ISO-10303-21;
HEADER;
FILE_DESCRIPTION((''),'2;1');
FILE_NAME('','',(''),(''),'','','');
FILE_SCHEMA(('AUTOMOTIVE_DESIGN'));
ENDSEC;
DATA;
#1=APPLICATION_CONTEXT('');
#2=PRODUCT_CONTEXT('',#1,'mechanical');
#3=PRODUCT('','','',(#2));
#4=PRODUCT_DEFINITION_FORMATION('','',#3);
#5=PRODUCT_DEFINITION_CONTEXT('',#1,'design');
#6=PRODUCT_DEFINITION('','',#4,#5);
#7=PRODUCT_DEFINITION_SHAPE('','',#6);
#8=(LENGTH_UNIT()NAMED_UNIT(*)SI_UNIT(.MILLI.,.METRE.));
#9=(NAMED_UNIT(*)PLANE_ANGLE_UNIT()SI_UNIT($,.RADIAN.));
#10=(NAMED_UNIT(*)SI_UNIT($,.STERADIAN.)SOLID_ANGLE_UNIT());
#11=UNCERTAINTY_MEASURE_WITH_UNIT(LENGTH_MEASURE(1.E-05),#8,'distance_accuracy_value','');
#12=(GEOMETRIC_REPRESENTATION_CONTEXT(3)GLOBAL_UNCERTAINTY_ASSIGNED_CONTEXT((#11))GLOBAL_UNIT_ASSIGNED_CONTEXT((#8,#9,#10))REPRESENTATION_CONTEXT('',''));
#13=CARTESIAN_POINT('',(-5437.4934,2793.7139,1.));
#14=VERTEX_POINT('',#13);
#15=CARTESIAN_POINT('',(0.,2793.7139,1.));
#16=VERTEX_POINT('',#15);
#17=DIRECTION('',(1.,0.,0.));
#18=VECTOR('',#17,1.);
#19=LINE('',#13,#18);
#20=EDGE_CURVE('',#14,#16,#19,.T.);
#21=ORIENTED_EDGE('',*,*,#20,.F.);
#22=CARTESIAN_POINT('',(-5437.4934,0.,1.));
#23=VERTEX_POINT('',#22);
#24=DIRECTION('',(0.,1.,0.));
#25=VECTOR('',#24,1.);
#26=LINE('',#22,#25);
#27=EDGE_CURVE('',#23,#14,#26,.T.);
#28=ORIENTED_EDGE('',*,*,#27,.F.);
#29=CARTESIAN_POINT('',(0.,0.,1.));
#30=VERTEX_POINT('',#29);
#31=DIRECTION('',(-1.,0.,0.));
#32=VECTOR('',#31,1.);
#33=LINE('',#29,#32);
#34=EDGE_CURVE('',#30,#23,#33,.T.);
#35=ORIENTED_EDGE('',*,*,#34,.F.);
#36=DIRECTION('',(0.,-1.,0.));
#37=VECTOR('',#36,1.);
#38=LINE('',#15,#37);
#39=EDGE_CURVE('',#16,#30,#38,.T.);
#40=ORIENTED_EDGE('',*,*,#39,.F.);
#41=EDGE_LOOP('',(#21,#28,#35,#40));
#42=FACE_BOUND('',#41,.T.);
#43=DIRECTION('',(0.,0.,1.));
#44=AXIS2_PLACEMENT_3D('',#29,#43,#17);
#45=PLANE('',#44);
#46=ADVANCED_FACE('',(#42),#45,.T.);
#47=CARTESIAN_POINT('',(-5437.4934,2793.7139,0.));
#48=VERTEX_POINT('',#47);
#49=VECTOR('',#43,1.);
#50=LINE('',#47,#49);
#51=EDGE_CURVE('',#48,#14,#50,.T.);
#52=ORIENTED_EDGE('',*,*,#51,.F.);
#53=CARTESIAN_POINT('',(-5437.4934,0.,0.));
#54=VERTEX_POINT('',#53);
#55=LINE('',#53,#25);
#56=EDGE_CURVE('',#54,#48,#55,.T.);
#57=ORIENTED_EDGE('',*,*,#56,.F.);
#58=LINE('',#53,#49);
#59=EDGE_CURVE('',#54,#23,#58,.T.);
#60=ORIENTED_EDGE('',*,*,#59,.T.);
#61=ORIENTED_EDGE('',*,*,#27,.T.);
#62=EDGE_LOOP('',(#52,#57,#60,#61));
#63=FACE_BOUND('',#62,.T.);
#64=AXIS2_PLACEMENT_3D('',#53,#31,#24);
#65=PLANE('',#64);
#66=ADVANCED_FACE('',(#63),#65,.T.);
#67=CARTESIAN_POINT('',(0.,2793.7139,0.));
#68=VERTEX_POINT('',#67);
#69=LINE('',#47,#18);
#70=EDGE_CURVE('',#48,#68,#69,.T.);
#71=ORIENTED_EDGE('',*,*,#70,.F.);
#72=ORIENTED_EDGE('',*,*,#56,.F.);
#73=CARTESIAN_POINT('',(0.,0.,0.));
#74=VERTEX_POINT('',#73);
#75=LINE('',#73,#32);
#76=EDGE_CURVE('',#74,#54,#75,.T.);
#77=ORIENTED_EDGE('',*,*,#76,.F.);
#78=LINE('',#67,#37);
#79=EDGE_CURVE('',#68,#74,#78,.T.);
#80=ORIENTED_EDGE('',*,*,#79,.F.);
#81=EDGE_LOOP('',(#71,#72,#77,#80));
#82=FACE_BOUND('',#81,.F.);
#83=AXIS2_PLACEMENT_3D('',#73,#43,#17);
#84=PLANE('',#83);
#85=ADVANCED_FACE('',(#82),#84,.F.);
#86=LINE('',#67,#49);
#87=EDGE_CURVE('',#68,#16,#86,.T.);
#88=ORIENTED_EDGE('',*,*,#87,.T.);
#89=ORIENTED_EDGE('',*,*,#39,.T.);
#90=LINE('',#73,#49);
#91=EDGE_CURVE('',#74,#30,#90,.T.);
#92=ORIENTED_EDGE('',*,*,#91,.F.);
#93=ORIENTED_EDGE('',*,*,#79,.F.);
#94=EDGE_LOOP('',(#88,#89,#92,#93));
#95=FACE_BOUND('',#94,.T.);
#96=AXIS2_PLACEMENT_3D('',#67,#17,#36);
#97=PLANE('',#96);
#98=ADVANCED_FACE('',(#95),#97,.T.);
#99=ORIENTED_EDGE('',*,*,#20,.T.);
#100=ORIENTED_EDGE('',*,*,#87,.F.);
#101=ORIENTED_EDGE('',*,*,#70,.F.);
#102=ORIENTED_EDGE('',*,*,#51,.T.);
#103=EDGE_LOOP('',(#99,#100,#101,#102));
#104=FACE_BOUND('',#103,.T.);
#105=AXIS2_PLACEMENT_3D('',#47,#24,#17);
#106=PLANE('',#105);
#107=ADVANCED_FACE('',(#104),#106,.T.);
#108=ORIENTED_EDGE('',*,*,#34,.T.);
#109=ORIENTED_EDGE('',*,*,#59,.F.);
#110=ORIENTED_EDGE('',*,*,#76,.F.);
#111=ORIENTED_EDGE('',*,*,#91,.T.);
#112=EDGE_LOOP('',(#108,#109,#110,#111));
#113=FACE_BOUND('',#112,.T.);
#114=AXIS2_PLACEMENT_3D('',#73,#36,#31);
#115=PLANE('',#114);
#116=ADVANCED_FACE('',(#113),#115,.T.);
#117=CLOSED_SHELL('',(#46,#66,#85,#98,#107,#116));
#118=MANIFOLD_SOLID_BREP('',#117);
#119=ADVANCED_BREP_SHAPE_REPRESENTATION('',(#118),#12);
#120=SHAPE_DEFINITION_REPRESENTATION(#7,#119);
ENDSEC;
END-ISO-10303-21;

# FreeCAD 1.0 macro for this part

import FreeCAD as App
import Part
import Sketcher
Q = App.Units.Quantity

doc = App.newDocument("Part")
body = doc.addObject("PartDesign::Body", "Body")

sketch1 = body.newObject("Sketcher::SketchObject", "Sketch")
sketch1.AttachmentSupport = (doc.getObject("XY_Plane"), [""])
sketch1.MapMode = "FlatFace"
sketch1.addGeometry(Part.LineSegment(App.Vector(-5437.4934, 0, 0), App.Vector(0, 0, 0)), False)
sketch1.addGeometry(Part.LineSegment(App.Vector(0, 0, 0), App.Vector(0, 2793.7139, 0)), False)
sketch1.addGeometry(Part.LineSegment(App.Vector(0, 2793.7139, 0), App.Vector(-5437.4934, 2793.7139, 0)), False)
sketch1.addGeometry(Part.LineSegment(App.Vector(-5437.4934, 2793.7139, 0), App.Vector(-5437.4934, 0, 0)), False)
sketch1.addConstraint(Sketcher.Constraint("Coincident", 0, 2, 1, 1))
sketch1.addConstraint(Sketcher.Constraint("Coincident", 1, 2, 2, 1))
sketch1.addConstraint(Sketcher.Constraint("Coincident", 2, 2, 3, 1))
sketch1.addConstraint(Sketcher.Constraint("Coincident", 3, 2, 0, 1))
sketch1.addConstraint(Sketcher.Constraint("Horizontal", 0))
sketch1.addConstraint(Sketcher.Constraint("Vertical", 1))
sketch1.addConstraint(Sketcher.Constraint("Horizontal", 2))
sketch1.addConstraint(Sketcher.Constraint("Vertical", 3))
sketch1.addConstraint(Sketcher.Constraint("Coincident", 0, 2, -1, 1))
sketch1.addConstraint(Sketcher.Constraint("DistanceY", 1, 1, 1, 2, Q("2793.714 mm")))
sketch1.addConstraint(Sketcher.Constraint("DistanceX", 0, 1, 0, 2, Q("5437.4934 mm")))
pad1 = body.newObject("PartDesign::Pad", "Pad")
pad1.Profile = sketch1
pad1.Length = 1

doc.recompute()
